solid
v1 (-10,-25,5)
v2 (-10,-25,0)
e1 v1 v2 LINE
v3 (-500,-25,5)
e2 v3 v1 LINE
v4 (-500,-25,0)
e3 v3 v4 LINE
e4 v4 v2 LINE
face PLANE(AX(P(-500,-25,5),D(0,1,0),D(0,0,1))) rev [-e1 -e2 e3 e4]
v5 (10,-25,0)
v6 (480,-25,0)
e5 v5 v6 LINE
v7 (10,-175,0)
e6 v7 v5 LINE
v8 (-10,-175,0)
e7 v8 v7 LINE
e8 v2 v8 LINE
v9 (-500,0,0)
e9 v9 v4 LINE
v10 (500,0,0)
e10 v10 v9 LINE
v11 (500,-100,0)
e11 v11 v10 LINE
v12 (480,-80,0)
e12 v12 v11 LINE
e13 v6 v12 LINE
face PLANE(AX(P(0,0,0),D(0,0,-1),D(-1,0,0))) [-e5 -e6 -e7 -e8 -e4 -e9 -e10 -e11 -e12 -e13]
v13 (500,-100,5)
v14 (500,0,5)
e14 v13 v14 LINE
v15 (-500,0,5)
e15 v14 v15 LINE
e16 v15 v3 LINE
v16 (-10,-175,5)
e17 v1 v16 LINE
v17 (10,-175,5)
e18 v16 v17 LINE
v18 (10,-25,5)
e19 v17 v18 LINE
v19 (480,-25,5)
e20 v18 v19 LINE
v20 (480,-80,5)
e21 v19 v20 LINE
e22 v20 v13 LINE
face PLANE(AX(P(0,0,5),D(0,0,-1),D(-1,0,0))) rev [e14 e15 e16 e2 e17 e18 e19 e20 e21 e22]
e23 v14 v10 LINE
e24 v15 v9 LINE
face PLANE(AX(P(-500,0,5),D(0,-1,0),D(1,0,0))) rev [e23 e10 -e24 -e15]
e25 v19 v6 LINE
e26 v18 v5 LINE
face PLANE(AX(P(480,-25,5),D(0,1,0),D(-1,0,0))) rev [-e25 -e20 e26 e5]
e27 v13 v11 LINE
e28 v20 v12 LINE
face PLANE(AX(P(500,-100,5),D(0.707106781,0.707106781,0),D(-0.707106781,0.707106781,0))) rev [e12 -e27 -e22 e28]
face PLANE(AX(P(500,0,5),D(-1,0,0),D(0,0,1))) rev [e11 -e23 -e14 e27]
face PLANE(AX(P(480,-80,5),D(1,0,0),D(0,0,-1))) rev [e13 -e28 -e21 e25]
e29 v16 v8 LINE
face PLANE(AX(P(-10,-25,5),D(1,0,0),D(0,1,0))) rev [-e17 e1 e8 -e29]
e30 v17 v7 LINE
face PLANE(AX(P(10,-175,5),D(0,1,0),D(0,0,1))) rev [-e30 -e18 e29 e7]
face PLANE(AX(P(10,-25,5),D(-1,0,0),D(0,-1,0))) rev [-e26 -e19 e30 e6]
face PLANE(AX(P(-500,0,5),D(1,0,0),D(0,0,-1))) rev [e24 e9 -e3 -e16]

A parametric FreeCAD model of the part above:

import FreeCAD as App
import Part
import Sketcher

V = App.Vector


def add_polygon(sketch, points):
    """Adds a closed chain of lines whose ends are joined by coincident constraints."""
    first, n = sketch.GeometryCount, len(points)
    for a, b in zip(points, points[1:] + points[:1]):
        sketch.addGeometry(Part.LineSegment(App.Vector(*a, 0), App.Vector(*b, 0)), False)
    for i in range(n):
        sketch.addConstraint(Sketcher.Constraint("Coincident", first + i, 2, first + (i + 1) % n, 1))

doc = App.newDocument("Part")
body = doc.addObject("PartDesign::Body", "Body")

sketch1 = body.newObject("Sketcher::SketchObject", "Sketch")
sketch1.AttachmentSupport = (doc.getObject("XY_Plane"), [""])
sketch1.MapMode = "FlatFace"
add_polygon(sketch1, [(500, 0), (-500, 0), (-500, -25), (-10, -25), (-10, -175), (10, -175), (10, -25), (480, -25), (480, -80), (500, -100)])
sketch1.addConstraint(Sketcher.Constraint("Horizontal", 0))
sketch1.addConstraint(Sketcher.Constraint("Vertical", 1))
sketch1.addConstraint(Sketcher.Constraint("Horizontal", 2))
sketch1.addConstraint(Sketcher.Constraint("Vertical", 3))
sketch1.addConstraint(Sketcher.Constraint("Horizontal", 4))
sketch1.addConstraint(Sketcher.Constraint("Vertical", 5))
sketch1.addConstraint(Sketcher.Constraint("Horizontal", 6))
sketch1.addConstraint(Sketcher.Constraint("Vertical", 7))
sketch1.addConstraint(Sketcher.Constraint("Vertical", 9))
sketch1.addConstraint(Sketcher.Constraint("Symmetric", 0, 2, 9, 2, -1, 1))
sketch1.addConstraint(Sketcher.Constraint("Symmetric", 2, 2, 5, 2, -2))
sketch1.addConstraint(Sketcher.Constraint("DistanceX", 0, 2, 0, 1, 1000.0))
sketch1.addConstraint(Sketcher.Constraint("DistanceX", 2, 1, 2, 2, 490.0))
sketch1.addConstraint(Sketcher.Constraint("DistanceX", 6, 1, 6, 2, 470.0))
sketch1.addConstraint(Sketcher.Constraint("DistanceY", 1, 2, 1, 1, 25.0))
sketch1.addConstraint(Sketcher.Constraint("DistanceY", 3, 2, 3, 1, 150.0))
sketch1.addConstraint(Sketcher.Constraint("DistanceY", 7, 2, 7, 1, 55.0))
sketch1.addConstraint(Sketcher.Constraint("DistanceY", 9, 1, 9, 2, 100.0))
pad1 = body.newObject("PartDesign::Pad", "Pad")
pad1.Profile = sketch1
pad1.Length = 5

doc.recompute()
